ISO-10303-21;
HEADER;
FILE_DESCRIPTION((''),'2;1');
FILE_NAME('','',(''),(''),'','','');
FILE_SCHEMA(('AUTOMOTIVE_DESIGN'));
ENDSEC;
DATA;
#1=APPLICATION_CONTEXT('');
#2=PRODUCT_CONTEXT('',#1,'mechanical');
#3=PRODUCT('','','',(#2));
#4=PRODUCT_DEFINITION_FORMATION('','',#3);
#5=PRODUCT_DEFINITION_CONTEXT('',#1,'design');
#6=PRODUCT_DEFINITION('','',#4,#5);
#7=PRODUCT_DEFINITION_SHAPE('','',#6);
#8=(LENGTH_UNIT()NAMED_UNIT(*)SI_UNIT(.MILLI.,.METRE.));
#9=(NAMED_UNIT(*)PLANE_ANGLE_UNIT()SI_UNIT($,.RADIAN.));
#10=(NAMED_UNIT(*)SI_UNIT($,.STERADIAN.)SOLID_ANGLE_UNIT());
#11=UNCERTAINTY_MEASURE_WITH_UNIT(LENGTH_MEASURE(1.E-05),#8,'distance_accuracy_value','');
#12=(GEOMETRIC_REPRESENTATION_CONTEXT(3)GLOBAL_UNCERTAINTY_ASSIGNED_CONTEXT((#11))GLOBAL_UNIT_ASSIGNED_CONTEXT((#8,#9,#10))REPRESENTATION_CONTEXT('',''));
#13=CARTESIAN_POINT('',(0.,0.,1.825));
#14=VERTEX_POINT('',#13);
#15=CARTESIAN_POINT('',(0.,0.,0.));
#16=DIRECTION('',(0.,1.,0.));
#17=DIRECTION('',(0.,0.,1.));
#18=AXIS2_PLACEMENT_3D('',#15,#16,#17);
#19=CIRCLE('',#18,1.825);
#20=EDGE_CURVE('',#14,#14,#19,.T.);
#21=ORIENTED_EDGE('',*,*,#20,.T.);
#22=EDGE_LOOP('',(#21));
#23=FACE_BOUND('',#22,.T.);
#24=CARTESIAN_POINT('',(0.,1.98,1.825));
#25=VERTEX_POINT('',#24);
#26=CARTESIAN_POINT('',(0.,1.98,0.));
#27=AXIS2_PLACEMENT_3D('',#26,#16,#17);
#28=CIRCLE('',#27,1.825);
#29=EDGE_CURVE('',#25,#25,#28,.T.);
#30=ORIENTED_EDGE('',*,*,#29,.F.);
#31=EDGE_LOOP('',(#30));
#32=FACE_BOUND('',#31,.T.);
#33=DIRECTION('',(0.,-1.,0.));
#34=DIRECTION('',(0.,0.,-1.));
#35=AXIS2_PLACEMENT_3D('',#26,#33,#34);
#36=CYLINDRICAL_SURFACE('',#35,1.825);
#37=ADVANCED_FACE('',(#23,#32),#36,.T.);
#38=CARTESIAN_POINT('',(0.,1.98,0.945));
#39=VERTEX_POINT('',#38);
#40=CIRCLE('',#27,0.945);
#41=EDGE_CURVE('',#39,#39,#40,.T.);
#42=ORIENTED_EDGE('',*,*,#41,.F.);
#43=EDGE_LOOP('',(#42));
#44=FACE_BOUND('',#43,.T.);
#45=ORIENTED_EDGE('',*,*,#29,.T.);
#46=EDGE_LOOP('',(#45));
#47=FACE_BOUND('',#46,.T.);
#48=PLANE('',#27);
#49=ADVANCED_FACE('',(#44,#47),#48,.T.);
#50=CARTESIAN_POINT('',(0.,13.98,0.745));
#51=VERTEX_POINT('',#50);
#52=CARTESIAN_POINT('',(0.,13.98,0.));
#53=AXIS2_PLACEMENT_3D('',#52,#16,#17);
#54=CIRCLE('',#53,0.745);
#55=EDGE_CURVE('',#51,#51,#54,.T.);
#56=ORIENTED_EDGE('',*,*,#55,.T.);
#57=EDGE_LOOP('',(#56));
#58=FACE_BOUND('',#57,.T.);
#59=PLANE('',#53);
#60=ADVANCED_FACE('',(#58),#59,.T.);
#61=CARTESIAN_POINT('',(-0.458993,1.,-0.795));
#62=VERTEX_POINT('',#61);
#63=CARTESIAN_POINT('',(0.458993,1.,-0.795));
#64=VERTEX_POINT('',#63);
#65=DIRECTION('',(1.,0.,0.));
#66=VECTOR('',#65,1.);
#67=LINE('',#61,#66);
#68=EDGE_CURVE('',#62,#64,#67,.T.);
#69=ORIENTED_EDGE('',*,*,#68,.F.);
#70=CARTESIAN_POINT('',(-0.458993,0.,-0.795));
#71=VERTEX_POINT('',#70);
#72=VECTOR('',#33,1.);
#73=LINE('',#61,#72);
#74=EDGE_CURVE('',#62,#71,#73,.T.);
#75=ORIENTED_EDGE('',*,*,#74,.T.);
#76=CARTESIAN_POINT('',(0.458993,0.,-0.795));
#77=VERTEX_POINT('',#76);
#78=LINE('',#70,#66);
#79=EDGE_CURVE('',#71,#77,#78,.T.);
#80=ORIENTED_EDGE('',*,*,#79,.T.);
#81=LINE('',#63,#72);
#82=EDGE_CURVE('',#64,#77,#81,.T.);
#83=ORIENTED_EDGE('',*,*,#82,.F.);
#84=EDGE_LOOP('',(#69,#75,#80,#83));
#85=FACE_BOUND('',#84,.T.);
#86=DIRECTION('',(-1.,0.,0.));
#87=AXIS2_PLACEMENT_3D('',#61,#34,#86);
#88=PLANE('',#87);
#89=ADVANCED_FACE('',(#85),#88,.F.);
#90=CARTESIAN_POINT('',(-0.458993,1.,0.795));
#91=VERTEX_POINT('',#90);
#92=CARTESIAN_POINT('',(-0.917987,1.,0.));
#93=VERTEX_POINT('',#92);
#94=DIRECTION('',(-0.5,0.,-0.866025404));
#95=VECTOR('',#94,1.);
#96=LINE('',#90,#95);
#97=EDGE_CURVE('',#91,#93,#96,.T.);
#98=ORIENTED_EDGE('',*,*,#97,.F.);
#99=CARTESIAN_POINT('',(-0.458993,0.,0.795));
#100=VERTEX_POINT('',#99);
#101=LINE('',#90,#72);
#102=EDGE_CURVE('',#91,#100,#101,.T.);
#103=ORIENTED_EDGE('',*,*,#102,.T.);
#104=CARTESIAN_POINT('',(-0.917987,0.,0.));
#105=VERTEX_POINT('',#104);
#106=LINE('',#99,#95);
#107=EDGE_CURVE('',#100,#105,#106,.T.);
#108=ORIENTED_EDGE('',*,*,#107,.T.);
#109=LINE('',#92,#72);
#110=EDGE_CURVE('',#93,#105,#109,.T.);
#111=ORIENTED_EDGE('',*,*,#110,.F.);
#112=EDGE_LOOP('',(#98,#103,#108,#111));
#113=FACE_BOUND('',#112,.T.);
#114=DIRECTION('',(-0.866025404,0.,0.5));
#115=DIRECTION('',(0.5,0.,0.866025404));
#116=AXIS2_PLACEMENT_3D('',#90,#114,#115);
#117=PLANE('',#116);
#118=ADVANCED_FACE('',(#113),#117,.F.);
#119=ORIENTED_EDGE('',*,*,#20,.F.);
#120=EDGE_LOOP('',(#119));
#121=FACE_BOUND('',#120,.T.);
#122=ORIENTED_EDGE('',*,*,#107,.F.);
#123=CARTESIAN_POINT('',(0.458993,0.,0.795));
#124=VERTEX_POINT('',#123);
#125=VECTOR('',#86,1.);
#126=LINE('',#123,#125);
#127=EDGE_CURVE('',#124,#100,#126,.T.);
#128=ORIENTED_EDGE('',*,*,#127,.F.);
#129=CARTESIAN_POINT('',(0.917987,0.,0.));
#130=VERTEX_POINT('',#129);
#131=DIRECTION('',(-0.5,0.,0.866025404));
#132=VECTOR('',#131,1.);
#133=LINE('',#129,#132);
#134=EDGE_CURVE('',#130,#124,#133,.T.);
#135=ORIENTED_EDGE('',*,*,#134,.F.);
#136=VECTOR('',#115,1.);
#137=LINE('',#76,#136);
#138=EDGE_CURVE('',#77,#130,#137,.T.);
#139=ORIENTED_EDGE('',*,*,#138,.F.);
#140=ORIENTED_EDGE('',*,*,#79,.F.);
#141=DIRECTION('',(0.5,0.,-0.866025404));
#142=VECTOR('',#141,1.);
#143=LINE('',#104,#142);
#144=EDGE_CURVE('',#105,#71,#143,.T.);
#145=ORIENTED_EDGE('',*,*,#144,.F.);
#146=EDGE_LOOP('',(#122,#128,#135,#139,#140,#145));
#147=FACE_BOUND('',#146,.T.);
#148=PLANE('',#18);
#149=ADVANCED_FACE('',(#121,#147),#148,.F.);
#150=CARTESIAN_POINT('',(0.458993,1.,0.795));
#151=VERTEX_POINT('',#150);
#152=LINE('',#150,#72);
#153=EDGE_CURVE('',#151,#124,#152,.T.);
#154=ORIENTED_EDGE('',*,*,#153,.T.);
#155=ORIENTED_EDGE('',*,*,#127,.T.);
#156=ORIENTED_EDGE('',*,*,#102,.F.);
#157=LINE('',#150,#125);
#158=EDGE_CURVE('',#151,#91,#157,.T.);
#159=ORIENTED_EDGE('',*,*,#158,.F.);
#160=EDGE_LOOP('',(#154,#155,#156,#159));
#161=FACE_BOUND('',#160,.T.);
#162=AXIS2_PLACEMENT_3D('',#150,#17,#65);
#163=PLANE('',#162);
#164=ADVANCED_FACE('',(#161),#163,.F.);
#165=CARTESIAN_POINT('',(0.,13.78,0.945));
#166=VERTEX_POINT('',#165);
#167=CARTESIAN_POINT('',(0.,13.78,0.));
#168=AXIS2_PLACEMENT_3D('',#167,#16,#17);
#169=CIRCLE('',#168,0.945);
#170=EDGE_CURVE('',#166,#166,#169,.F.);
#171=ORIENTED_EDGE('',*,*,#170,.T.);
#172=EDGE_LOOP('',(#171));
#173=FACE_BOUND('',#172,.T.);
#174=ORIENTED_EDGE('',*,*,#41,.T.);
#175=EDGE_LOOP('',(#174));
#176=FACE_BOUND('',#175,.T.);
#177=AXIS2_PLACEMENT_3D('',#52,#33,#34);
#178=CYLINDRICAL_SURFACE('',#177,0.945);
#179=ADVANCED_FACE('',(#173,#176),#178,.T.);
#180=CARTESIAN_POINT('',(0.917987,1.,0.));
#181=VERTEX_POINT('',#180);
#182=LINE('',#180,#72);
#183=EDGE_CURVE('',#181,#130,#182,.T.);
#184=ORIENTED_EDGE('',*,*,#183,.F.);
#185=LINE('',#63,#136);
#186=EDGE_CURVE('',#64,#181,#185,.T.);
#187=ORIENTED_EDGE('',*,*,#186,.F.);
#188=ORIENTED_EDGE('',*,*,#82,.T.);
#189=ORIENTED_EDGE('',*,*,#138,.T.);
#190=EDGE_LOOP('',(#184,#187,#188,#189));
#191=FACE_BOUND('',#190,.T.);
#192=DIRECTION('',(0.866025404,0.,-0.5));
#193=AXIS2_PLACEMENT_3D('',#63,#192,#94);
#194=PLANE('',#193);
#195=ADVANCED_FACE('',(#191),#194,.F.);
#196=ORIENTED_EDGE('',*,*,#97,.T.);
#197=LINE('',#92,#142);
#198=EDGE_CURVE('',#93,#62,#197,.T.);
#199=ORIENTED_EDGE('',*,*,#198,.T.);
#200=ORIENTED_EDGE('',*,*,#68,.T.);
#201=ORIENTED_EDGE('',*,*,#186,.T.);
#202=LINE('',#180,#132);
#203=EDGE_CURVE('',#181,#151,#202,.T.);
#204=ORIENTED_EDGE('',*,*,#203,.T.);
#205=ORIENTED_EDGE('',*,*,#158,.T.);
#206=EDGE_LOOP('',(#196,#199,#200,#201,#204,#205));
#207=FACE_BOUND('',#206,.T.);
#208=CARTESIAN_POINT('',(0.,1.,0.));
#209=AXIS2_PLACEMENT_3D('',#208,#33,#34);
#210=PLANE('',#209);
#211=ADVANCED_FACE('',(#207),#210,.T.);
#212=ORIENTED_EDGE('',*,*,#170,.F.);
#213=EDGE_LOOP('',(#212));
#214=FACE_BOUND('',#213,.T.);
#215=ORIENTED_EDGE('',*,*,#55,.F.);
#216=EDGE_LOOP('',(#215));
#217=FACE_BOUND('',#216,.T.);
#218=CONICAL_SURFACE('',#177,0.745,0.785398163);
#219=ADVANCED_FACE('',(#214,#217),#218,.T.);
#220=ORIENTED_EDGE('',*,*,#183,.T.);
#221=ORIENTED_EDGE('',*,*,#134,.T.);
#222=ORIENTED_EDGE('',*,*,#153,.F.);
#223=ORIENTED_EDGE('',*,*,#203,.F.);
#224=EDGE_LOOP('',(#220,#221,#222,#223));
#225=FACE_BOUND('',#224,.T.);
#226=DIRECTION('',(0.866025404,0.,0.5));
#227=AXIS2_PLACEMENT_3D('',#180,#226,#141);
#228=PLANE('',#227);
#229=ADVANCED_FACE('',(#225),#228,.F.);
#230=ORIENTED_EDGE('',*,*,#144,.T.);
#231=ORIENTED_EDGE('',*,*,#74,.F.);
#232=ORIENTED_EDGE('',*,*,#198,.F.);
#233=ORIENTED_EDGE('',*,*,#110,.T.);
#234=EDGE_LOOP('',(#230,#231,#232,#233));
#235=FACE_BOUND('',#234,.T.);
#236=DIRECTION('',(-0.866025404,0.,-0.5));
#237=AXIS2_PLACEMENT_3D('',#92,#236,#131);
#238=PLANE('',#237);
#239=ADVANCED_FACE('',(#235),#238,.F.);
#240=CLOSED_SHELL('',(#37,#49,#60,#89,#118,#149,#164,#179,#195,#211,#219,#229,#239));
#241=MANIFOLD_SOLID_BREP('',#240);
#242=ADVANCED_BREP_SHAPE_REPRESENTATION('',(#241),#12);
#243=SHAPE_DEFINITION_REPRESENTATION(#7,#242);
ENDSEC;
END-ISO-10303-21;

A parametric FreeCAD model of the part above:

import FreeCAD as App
import Part
import Sketcher
Q = App.Units.Quantity


def edges_at(feature, points):
    """Names of the edges that pass closest to the given points."""
    edges = feature.Shape.Edges
    near = lambda p: min(range(len(edges)), key=lambda i: edges[i].distToShape(Part.Vertex(*p))[0])
    return sorted({f"Edge{near(p) + 1}" for p in points})

doc = App.newDocument("Part")
body = doc.addObject("PartDesign::Body", "Body")

sketch1 = body.newObject("Sketcher::SketchObject", "Sketch")
sketch1.AttachmentSupport = (doc.getObject("XZ_Plane"), [""])
sketch1.MapMode = "FlatFace"
sketch1.addGeometry(Part.Circle(App.Vector(0, 0, 0), App.Vector(0, 0, 1), 1.8), False)
sketch1.addConstraint([
    Sketcher.Constraint("Coincident", 0, 3, -1, 1),
    Sketcher.Constraint("Diameter", 0, Q("3.65 mm")),
])
pad1 = body.newObject("PartDesign::Pad", "Pad")
pad1.Profile = sketch1
pad1.Length = 1.98
pad1.Reversed = True

sketch2 = body.newObject("Sketcher::SketchObject", "Sketch001")
sketch2.AttachmentSupport = (doc.getObject("XZ_Plane"), [""])
sketch2.MapMode = "FlatFace"
sketch2.AttachmentOffset = App.Placement(App.Vector(0, 0, -1.98), App.Rotation())
sketch2.addGeometry(Part.Circle(App.Vector(0, 0, 0), App.Vector(0, 0, 1), 0.9), False)
sketch2.addConstraint([
    Sketcher.Constraint("Coincident", 0, 3, -1, 1),
    Sketcher.Constraint("Diameter", 0, Q("1.89 mm")),
])
pad2 = body.newObject("PartDesign::Pad", "Pad001")
pad2.Profile = sketch2
pad2.Length = 12
pad2.Reversed = True

sketch3 = body.newObject("Sketcher::SketchObject", "Sketch002")
sketch3.AttachmentSupport = (doc.getObject("XZ_Plane"), [""])
sketch3.MapMode = "FlatFace"
sketch3.addGeometry([
    Part.LineSegment(App.Vector(0.5, -0.8, 0), App.Vector(0.9, 0, 0)),
    Part.LineSegment(App.Vector(0.9, 0, 0), App.Vector(0.5, 0.8, 0)),
    Part.LineSegment(App.Vector(0.5, 0.8, 0), App.Vector(-0.5, 0.8, 0)),
    Part.LineSegment(App.Vector(-0.5, 0.8, 0), App.Vector(-0.9, 0, 0)),
    Part.LineSegment(App.Vector(-0.9, 0, 0), App.Vector(-0.5, -0.8, 0)),
    Part.LineSegment(App.Vector(-0.5, -0.8, 0), App.Vector(0.5, -0.8, 0)),
], False)
sketch3.addConstraint([
    Sketcher.Constraint("Coincident", 0, 2, 1, 1),
    Sketcher.Constraint("Coincident", 1, 2, 2, 1),
    Sketcher.Constraint("Coincident", 2, 2, 3, 1),
    Sketcher.Constraint("Coincident", 3, 2, 4, 1),
    Sketcher.Constraint("Coincident", 4, 2, 5, 1),
    Sketcher.Constraint("Coincident", 5, 2, 0, 1),
    Sketcher.Constraint("Horizontal", 2),
    Sketcher.Constraint("Horizontal", 5),
    Sketcher.Constraint("Symmetric", 0, 2, 3, 2, -1, 1),
    Sketcher.Constraint("Symmetric", 1, 2, 4, 2, -1, 1),
    Sketcher.Constraint("PointOnObject", 0, 2, -1),
    Sketcher.Constraint("Parallel", 0, 3),
    Sketcher.Constraint("Vertical", 2, 2, 4, 2),
    Sketcher.Constraint("Angle", 0, Q("60 deg")),
    Sketcher.Constraint("DistanceY", 4, 2, 2, 2, Q("1.59 mm")),
    Sketcher.Constraint("DistanceX", 2, 2, 2, 1, Q("0.917987 mm")),
])
pocket1 = body.newObject("PartDesign::Pocket", "Pocket")
pocket1.Profile = sketch3
pocket1.Length = 1
doc.recompute()

chamfer = body.newObject("PartDesign::Chamfer", "Chamfer")
chamfer.Base = (pocket1, edges_at(pocket1, [(-0.945, 13.98, 0)]))
chamfer.Size = 0.2

doc.recompute()
